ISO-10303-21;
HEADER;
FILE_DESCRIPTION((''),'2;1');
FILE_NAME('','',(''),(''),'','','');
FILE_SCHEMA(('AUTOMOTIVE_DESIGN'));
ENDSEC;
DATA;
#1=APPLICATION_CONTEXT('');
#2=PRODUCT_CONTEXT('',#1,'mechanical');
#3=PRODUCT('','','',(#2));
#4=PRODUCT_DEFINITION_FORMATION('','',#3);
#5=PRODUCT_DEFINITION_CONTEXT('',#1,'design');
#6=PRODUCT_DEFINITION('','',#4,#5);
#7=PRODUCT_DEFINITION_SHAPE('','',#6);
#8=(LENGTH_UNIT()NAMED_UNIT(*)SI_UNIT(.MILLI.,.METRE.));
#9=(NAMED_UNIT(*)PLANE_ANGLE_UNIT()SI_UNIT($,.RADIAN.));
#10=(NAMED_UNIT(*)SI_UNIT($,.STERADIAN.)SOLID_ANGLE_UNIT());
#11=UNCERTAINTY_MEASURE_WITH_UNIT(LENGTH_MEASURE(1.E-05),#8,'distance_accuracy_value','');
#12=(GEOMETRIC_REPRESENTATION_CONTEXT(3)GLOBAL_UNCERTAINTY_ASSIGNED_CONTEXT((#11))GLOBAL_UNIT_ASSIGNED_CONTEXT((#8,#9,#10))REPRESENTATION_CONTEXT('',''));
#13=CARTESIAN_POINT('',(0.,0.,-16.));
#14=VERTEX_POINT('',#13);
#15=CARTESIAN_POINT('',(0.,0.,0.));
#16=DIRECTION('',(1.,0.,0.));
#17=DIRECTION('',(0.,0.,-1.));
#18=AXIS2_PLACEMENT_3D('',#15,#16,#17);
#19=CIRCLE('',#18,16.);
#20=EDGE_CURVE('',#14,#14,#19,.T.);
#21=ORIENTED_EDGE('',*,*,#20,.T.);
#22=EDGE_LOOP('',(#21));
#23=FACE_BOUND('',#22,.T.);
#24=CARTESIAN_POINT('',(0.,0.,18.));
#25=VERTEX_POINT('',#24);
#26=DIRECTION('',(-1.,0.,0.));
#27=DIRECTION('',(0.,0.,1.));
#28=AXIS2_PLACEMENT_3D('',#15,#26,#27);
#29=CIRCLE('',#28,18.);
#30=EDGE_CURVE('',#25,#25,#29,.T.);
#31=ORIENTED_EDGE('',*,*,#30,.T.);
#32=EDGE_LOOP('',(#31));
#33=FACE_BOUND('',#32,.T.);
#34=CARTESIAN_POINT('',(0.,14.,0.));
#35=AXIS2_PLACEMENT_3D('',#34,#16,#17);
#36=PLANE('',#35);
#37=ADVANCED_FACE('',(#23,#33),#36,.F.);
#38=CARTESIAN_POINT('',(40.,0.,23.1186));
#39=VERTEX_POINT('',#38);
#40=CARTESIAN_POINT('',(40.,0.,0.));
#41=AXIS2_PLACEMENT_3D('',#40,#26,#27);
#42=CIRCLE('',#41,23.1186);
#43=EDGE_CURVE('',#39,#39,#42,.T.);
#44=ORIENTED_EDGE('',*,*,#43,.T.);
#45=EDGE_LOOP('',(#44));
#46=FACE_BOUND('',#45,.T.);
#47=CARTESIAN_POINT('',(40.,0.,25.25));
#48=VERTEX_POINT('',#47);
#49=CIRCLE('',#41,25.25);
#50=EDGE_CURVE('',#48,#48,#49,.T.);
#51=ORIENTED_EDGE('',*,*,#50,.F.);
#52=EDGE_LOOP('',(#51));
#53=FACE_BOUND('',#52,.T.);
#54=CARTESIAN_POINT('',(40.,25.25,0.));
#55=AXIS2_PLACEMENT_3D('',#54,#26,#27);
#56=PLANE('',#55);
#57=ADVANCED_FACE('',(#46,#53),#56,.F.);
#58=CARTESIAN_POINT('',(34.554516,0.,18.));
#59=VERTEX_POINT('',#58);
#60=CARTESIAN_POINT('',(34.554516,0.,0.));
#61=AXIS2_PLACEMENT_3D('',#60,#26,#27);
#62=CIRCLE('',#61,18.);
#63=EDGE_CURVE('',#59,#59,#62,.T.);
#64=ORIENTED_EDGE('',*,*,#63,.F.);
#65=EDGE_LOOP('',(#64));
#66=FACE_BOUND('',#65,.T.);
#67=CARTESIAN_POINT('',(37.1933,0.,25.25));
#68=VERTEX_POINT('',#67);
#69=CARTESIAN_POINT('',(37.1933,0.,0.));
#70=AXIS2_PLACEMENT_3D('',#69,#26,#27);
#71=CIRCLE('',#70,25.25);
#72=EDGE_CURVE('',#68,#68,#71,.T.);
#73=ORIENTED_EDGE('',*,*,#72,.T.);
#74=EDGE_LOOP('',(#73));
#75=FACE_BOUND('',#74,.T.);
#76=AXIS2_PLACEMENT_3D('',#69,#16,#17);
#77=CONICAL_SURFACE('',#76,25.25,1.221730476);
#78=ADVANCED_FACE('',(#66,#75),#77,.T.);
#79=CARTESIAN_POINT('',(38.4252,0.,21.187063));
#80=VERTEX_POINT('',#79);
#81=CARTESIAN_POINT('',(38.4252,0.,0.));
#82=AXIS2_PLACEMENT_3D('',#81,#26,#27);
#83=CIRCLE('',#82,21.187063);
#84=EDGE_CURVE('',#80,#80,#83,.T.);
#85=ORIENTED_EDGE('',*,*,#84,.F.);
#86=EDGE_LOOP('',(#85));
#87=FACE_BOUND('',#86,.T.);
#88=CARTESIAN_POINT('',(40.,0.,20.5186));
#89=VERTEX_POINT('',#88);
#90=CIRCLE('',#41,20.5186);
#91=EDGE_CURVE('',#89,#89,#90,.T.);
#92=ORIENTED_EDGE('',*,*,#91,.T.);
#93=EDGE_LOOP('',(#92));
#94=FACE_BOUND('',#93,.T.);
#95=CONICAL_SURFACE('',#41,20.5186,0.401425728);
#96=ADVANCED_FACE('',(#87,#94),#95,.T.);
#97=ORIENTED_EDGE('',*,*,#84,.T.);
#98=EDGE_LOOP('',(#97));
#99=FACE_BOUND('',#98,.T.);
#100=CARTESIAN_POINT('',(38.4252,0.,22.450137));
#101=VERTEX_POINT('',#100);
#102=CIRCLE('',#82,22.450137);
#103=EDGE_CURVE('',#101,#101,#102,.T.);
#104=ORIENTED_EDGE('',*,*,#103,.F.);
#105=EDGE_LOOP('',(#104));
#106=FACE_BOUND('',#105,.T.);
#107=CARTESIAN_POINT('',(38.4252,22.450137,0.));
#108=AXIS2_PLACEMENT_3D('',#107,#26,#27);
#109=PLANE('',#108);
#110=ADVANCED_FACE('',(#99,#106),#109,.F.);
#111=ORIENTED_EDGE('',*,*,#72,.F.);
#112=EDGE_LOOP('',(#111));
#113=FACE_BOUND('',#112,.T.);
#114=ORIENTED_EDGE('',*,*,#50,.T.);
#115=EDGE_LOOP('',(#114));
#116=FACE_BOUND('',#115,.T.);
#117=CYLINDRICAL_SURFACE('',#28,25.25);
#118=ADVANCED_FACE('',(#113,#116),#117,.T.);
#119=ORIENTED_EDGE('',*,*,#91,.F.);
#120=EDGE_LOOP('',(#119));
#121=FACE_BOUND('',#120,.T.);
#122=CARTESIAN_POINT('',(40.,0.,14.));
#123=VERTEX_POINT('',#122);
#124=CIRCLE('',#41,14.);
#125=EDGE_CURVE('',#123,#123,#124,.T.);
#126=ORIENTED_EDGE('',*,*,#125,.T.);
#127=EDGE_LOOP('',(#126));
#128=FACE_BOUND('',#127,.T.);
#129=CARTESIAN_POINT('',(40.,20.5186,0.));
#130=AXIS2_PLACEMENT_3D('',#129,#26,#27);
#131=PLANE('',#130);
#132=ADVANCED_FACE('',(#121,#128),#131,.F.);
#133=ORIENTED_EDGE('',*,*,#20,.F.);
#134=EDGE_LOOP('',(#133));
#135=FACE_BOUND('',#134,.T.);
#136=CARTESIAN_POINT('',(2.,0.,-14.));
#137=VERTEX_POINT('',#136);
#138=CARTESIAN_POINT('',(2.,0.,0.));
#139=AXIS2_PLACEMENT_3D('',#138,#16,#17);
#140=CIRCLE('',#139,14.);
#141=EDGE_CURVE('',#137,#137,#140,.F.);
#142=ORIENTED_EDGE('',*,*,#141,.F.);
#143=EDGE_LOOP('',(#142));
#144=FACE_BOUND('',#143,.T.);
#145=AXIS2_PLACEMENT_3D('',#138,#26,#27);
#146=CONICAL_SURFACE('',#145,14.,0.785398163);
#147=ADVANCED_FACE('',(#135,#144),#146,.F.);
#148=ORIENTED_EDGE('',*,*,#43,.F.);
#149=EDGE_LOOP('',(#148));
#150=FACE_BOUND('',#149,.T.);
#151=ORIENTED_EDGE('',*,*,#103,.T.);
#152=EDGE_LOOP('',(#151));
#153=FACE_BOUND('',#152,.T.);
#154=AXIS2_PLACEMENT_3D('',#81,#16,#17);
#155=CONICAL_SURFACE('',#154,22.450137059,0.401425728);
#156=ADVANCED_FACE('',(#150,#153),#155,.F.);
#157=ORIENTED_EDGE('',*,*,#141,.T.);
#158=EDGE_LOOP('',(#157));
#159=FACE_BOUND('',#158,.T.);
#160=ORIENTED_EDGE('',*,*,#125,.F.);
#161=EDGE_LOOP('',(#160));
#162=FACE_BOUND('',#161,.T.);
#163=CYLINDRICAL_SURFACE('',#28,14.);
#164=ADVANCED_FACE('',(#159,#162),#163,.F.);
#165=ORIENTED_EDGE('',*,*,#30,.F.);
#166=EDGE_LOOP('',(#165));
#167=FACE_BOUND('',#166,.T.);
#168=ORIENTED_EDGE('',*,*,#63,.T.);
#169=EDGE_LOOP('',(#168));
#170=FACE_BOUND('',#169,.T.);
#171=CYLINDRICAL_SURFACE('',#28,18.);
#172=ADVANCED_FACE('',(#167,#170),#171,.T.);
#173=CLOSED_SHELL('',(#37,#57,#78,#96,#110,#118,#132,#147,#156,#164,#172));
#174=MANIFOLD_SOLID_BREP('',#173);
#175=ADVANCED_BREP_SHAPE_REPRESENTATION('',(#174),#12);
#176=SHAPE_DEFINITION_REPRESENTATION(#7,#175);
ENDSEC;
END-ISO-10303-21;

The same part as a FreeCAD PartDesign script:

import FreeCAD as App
import Part
import Sketcher

V = App.Vector
Q = App.Units.Quantity


def edges_at(feature, points):
    """Names of the edges that pass closest to the given points."""
    edges = feature.Shape.Edges
    near = lambda p: min(range(len(edges)), key=lambda i: edges[i].distToShape(Part.Vertex(*p))[0])
    return sorted({f"Edge{near(p) + 1}" for p in points})


def add_polygon(sketch, points):
    """Adds a closed chain of lines whose ends are joined by coincident constraints."""
    first, n = sketch.GeometryCount, len(points)
    for a, b in zip(points, points[1:] + points[:1]):
        sketch.addGeometry(Part.LineSegment(App.Vector(*a, 0), App.Vector(*b, 0)), False)
    for i in range(n):
        sketch.addConstraint(Sketcher.Constraint("Coincident", first + i, 2, first + (i + 1) % n, 1))

doc = App.newDocument("Part")
params = doc.addObject("Spreadsheet::Sheet", "Params")
for row, (alias, value) in enumerate([
    ("sketch1_width", "35 mm"),
    ("sketch1_width2", "5 mm"),
    ("sketch1_height", "4 mm"),
    ("sketch1_height2", "2 mm"),
    ("revolution_angle", "360 deg"),
    ("chamfer_size", "2 mm"),
    ("sketch2_diameter", "28 mm"),
], start=1):
    params.set(f"A{row}", alias)
    params.set(f"B{row}", "=" + value)
    params.setAlias(f"B{row}", alias)

body = doc.addObject("PartDesign::Body", "Body")

sketch1 = doc.addObject("Sketcher::SketchObject", "Sketch")
body.addObject(sketch1)
sketch1.AttachmentSupport = (doc.XY_Plane, [""])
sketch1.MapMode = "FlatFace"
add_polygon(sketch1, [(37.1933, 25.25), (34.554516, 18), (0, 18), (0, 14), (35, 14), (35, 12), (40, 12), (40, 20.5186), (38.4252, 21.187063), (38.4252, 22.450137), (40, 23.1186), (40, 25.25)])
sketch1.addConstraint([
    Sketcher.Constraint("Horizontal", 1),
    Sketcher.Constraint("Vertical", 2),
    Sketcher.Constraint("Horizontal", 3),
    Sketcher.Constraint("Vertical", 4),
    Sketcher.Constraint("Horizontal", 5),
    Sketcher.Constraint("Vertical", 6),
    Sketcher.Constraint("Vertical", 8),
    Sketcher.Constraint("Vertical", 10),
    Sketcher.Constraint("Horizontal", 11),
    Sketcher.Constraint("PointOnObject", 1, 2, -2),
    Sketcher.Constraint("Vertical", 6, 2, 9, 2),
    Sketcher.Constraint("Equal", 7, 9),
    Sketcher.Constraint("DistanceX", 3, 1, 3, 2, 35.0),
    Sketcher.Constraint("DistanceX", 5, 1, 5, 2, 5.0),
    Sketcher.Constraint("DistanceY", 2, 2, 2, 1, 4.0),
    Sketcher.Constraint("DistanceY", 4, 2, 4, 1, 2.0),
    Sketcher.Constraint("Angle", 0, Q("-110 deg")),
    Sketcher.Constraint("Angle", 7, Q("157 deg")),
    Sketcher.Constraint("DistanceY", -1, 1, 0, 2, 18.0),
    Sketcher.Constraint("DistanceY", 6, 2, 9, 2, 2.6),
    Sketcher.Constraint("DistanceY", -1, 1, 10, 2, 25.25),
    Sketcher.Constraint("DistanceX", 11, 2, 11, 1, 2.8067),
    Sketcher.Constraint("DistanceY", 6, 1, 6, 2, 8.5186),
    Sketcher.Constraint("Distance", 7, 1.7108),
])
sketch1.setExpression("Constraints[24]", "Params.sketch1_width")
sketch1.setExpression("Constraints[25]", "Params.sketch1_width2")
sketch1.setExpression("Constraints[26]", "Params.sketch1_height")
sketch1.setExpression("Constraints[27]", "Params.sketch1_height2")
revolution = doc.addObject("PartDesign::Revolution", "Revolution")
body.addObject(revolution)
revolution.Profile = sketch1
revolution.ReferenceAxis = (sketch1, ["H_Axis"])
revolution.setExpression("Angle", "Params.revolution_angle")
doc.recompute()

chamfer = doc.addObject("PartDesign::Chamfer", "Chamfer")
body.addObject(chamfer)
chamfer.Base = (revolution, edges_at(revolution, [(0, -14, 0)]))
chamfer.setExpression("Size", "Params.chamfer_size")

sketch2 = doc.addObject("Sketcher::SketchObject", "Sketch001")
body.addObject(sketch2)
sketch2.AttachmentSupport = (doc.YZ_Plane, [""])
sketch2.MapMode = "FlatFace"
sketch2.addGeometry(Part.Circle(V(0, 0, 0), V(0, 0, 1), 14), False)
sketch2.addConstraint([
    Sketcher.Constraint("Coincident", 0, 3, -1, 1),
    Sketcher.Constraint("Diameter", 0, 28.0),
])
sketch2.setExpression("Constraints[1]", "Params.sketch2_diameter")
pocket1 = doc.addObject("PartDesign::Pocket", "Pocket")
body.addObject(pocket1)
pocket1.Profile = sketch2
pocket1.Type = "ThroughAll"
pocket1.Reversed = True

doc.recompute()
